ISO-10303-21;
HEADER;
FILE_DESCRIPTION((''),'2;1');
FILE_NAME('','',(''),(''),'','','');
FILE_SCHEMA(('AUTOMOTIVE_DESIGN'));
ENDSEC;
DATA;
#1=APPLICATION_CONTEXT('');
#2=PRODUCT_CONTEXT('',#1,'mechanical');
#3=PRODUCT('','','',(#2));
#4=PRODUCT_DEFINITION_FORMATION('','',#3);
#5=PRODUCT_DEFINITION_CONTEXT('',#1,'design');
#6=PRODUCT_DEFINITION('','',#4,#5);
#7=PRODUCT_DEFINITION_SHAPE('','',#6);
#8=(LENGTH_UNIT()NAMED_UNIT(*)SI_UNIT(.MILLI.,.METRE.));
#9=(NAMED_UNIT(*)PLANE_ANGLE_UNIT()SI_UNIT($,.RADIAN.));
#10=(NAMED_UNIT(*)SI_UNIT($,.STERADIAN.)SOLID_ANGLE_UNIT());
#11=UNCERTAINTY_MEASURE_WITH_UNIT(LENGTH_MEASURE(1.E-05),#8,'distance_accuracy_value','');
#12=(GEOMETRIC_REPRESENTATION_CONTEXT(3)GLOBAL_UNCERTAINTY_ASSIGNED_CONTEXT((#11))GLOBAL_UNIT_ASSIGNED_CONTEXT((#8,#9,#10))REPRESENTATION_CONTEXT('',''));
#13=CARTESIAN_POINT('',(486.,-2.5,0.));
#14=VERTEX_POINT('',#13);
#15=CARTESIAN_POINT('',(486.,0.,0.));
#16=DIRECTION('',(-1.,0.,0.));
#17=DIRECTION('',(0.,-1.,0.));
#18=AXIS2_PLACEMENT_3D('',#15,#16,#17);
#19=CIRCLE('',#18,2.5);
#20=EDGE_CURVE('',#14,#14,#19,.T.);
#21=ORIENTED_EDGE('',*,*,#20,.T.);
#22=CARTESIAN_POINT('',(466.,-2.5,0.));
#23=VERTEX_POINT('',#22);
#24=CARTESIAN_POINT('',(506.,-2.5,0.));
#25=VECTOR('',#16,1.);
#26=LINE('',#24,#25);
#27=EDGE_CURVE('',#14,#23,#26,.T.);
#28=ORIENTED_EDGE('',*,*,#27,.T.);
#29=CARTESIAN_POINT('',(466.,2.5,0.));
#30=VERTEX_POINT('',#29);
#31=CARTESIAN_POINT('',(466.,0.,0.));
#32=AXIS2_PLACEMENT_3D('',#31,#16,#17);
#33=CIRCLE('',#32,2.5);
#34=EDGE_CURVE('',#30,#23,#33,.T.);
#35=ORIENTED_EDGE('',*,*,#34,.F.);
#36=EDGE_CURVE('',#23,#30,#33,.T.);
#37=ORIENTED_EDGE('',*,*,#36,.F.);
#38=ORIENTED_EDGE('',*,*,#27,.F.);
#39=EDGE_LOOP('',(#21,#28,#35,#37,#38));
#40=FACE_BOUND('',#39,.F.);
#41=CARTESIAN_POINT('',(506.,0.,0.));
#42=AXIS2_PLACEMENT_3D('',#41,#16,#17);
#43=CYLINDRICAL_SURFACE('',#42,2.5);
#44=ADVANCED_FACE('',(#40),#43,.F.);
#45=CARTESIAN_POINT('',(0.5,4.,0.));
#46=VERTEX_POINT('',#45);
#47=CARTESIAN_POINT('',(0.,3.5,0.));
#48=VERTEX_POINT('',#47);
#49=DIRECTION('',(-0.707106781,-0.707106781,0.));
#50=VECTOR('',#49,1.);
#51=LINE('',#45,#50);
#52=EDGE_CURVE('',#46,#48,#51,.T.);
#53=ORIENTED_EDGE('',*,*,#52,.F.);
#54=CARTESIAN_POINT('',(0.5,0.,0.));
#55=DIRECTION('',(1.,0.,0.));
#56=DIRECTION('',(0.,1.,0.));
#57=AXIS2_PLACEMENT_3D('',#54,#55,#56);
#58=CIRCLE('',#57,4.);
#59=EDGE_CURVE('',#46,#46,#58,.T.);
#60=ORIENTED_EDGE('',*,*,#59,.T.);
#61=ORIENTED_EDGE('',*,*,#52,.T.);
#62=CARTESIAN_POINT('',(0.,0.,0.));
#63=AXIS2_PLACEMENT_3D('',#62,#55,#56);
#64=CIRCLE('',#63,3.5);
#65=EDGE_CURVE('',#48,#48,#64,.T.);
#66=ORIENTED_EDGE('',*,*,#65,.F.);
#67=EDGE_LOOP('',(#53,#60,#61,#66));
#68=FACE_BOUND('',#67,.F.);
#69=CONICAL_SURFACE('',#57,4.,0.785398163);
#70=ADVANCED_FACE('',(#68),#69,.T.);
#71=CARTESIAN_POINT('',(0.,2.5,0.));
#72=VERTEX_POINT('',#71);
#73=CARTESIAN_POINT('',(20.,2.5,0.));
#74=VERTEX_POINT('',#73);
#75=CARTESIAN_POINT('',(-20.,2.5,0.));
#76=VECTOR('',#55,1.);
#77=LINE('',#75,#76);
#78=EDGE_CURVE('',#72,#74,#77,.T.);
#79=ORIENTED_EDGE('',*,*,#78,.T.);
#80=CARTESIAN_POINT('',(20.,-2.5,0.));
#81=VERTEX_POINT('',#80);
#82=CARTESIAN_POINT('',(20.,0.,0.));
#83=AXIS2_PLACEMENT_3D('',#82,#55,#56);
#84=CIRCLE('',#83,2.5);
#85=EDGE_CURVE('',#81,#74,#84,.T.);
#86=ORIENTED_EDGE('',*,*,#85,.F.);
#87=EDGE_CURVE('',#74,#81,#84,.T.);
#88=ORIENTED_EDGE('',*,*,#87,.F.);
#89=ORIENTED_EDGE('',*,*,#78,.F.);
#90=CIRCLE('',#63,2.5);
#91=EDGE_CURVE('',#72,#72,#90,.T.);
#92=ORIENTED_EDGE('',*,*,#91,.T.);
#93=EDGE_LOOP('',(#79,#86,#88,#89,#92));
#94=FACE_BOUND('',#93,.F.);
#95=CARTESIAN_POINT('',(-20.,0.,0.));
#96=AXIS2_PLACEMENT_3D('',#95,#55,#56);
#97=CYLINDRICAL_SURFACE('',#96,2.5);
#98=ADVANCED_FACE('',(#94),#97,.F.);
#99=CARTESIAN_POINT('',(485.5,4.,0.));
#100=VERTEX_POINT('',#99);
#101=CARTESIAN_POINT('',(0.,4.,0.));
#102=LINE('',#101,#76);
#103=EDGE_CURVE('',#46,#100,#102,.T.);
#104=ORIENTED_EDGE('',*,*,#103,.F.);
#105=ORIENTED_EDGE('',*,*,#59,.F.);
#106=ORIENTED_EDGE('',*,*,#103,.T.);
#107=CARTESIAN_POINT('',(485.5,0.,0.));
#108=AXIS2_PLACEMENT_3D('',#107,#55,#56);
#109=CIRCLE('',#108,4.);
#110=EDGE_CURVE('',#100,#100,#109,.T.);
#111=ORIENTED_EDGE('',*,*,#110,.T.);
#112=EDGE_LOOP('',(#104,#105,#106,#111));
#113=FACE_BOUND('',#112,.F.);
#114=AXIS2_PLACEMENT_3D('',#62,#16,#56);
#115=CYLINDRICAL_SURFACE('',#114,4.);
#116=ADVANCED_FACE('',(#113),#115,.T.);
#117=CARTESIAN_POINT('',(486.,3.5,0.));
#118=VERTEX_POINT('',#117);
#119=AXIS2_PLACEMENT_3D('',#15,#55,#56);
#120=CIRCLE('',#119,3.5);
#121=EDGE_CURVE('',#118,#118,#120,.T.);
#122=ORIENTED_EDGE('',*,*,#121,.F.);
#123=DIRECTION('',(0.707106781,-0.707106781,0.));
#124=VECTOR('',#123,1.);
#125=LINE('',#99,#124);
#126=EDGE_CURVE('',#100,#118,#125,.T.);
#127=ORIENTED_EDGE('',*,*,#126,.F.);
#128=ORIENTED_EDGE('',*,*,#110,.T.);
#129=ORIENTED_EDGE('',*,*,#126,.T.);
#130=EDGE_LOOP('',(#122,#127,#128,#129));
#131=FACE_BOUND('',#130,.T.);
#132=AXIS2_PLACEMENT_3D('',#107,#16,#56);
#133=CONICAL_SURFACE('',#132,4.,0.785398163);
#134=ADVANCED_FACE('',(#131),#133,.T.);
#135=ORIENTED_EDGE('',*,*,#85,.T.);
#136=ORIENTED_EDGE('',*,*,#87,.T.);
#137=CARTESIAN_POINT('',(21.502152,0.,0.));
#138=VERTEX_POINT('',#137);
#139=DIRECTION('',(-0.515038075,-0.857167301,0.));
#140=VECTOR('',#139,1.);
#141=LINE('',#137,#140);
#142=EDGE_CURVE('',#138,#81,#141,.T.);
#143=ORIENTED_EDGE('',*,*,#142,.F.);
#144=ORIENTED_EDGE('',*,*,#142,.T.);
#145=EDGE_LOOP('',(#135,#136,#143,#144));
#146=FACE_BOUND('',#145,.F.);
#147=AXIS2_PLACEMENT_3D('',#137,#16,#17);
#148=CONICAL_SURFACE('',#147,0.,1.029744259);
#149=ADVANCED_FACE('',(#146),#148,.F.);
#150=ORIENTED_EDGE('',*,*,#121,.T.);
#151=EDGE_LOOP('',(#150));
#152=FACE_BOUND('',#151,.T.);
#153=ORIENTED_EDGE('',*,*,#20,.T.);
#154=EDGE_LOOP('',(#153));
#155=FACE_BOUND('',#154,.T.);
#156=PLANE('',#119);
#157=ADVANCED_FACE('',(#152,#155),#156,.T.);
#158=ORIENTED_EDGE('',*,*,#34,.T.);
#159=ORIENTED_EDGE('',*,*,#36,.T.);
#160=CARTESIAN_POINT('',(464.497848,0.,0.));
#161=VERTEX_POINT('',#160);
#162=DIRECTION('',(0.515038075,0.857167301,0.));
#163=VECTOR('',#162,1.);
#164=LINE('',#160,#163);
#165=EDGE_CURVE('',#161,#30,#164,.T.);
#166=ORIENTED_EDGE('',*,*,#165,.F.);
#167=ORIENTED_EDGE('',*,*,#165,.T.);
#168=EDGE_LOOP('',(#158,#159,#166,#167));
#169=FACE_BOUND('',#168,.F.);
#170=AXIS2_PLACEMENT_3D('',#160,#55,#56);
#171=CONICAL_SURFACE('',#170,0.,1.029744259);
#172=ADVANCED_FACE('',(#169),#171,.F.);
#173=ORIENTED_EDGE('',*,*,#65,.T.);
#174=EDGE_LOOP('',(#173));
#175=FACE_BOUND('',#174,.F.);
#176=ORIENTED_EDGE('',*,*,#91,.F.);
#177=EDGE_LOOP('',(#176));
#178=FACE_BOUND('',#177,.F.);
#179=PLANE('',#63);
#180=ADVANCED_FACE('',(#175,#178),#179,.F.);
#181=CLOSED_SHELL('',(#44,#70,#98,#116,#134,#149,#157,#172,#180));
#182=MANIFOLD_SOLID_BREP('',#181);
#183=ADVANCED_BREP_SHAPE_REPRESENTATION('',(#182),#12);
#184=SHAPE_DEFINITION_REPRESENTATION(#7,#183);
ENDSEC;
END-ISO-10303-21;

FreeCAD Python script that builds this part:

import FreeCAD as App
import Part
import Sketcher


def edges_at(feature, points):
    """Names of the edges that pass closest to the given points."""
    edges = feature.Shape.Edges
    near = lambda p: min(range(len(edges)), key=lambda i: edges[i].distToShape(Part.Vertex(*p))[0])
    return sorted({f"Edge{near(p) + 1}" for p in points})

doc = App.newDocument("Part")
body = doc.addObject("PartDesign::Body", "Body")

sketch1 = body.newObject("Sketcher::SketchObject", "Sketch")
sketch1.AttachmentSupport = (doc.getObject("YZ_Plane"), [""])
sketch1.MapMode = "FlatFace"
sketch1.addGeometry(Part.Circle(App.Vector(0, 0, 0), App.Vector(0, 0, 1), 4), False)
sketch1.addConstraint([
    Sketcher.Constraint("Coincident", 0, 3, -1, 1),
    Sketcher.Constraint("Diameter", 0, 8.0),
])
pad1 = body.newObject("PartDesign::Pad", "Pad")
pad1.Profile = sketch1
pad1.Length = 486

sketch2 = body.newObject("Sketcher::SketchObject", "Sketch001")
sketch2.AttachmentSupport = (doc.getObject("YZ_Plane"), [""])
sketch2.MapMode = "FlatFace"
sketch2.addGeometry(Part.Circle(App.Vector(0, 0, 0), App.Vector(0, 0, 1), 2.5), False)
sketch2.addConstraint([
    Sketcher.Constraint("Coincident", 0, 3, -1, 1),
    Sketcher.Constraint("Diameter", 0, 5.0),
])
doc.recompute()
hole = body.newObject("PartDesign::Hole", "Hole")
hole.Profile = sketch2
hole.ThreadType = "None"
hole.Diameter = 5
hole.DepthType = "Dimension"
hole.Depth = 20
hole.DrillPoint = "Angled"
hole.DrillPointAngle = 118
hole.Reversed = True

sketch3 = body.newObject("Sketcher::SketchObject", "Sketch002")
sketch3.AttachmentSupport = (doc.getObject("YZ_Plane"), [""])
sketch3.MapMode = "FlatFace"
sketch3.AttachmentOffset = App.Placement(App.Vector(0, 0, 486), App.Rotation())
sketch3.addGeometry(Part.Circle(App.Vector(0, 0, 0), App.Vector(0, 0, 1), 2.5), False)
sketch3.addConstraint([
    Sketcher.Constraint("Coincident", 0, 3, -1, 1),
    Sketcher.Constraint("Diameter", 0, 5.0),
])
doc.recompute()
hole2 = body.newObject("PartDesign::Hole", "Hole001")
hole2.Profile = sketch3
hole2.ThreadType = "None"
hole2.Diameter = 5
hole2.DepthType = "Dimension"
hole2.Depth = 20
hole2.DrillPoint = "Angled"
hole2.DrillPointAngle = 118
doc.recompute()

chamfer = body.newObject("PartDesign::Chamfer", "Chamfer")
chamfer.Base = (hole2, edges_at(hole2, [(486, -4, 0), (0, -4, 0)]))
chamfer.Size = 0.5

doc.recompute()
